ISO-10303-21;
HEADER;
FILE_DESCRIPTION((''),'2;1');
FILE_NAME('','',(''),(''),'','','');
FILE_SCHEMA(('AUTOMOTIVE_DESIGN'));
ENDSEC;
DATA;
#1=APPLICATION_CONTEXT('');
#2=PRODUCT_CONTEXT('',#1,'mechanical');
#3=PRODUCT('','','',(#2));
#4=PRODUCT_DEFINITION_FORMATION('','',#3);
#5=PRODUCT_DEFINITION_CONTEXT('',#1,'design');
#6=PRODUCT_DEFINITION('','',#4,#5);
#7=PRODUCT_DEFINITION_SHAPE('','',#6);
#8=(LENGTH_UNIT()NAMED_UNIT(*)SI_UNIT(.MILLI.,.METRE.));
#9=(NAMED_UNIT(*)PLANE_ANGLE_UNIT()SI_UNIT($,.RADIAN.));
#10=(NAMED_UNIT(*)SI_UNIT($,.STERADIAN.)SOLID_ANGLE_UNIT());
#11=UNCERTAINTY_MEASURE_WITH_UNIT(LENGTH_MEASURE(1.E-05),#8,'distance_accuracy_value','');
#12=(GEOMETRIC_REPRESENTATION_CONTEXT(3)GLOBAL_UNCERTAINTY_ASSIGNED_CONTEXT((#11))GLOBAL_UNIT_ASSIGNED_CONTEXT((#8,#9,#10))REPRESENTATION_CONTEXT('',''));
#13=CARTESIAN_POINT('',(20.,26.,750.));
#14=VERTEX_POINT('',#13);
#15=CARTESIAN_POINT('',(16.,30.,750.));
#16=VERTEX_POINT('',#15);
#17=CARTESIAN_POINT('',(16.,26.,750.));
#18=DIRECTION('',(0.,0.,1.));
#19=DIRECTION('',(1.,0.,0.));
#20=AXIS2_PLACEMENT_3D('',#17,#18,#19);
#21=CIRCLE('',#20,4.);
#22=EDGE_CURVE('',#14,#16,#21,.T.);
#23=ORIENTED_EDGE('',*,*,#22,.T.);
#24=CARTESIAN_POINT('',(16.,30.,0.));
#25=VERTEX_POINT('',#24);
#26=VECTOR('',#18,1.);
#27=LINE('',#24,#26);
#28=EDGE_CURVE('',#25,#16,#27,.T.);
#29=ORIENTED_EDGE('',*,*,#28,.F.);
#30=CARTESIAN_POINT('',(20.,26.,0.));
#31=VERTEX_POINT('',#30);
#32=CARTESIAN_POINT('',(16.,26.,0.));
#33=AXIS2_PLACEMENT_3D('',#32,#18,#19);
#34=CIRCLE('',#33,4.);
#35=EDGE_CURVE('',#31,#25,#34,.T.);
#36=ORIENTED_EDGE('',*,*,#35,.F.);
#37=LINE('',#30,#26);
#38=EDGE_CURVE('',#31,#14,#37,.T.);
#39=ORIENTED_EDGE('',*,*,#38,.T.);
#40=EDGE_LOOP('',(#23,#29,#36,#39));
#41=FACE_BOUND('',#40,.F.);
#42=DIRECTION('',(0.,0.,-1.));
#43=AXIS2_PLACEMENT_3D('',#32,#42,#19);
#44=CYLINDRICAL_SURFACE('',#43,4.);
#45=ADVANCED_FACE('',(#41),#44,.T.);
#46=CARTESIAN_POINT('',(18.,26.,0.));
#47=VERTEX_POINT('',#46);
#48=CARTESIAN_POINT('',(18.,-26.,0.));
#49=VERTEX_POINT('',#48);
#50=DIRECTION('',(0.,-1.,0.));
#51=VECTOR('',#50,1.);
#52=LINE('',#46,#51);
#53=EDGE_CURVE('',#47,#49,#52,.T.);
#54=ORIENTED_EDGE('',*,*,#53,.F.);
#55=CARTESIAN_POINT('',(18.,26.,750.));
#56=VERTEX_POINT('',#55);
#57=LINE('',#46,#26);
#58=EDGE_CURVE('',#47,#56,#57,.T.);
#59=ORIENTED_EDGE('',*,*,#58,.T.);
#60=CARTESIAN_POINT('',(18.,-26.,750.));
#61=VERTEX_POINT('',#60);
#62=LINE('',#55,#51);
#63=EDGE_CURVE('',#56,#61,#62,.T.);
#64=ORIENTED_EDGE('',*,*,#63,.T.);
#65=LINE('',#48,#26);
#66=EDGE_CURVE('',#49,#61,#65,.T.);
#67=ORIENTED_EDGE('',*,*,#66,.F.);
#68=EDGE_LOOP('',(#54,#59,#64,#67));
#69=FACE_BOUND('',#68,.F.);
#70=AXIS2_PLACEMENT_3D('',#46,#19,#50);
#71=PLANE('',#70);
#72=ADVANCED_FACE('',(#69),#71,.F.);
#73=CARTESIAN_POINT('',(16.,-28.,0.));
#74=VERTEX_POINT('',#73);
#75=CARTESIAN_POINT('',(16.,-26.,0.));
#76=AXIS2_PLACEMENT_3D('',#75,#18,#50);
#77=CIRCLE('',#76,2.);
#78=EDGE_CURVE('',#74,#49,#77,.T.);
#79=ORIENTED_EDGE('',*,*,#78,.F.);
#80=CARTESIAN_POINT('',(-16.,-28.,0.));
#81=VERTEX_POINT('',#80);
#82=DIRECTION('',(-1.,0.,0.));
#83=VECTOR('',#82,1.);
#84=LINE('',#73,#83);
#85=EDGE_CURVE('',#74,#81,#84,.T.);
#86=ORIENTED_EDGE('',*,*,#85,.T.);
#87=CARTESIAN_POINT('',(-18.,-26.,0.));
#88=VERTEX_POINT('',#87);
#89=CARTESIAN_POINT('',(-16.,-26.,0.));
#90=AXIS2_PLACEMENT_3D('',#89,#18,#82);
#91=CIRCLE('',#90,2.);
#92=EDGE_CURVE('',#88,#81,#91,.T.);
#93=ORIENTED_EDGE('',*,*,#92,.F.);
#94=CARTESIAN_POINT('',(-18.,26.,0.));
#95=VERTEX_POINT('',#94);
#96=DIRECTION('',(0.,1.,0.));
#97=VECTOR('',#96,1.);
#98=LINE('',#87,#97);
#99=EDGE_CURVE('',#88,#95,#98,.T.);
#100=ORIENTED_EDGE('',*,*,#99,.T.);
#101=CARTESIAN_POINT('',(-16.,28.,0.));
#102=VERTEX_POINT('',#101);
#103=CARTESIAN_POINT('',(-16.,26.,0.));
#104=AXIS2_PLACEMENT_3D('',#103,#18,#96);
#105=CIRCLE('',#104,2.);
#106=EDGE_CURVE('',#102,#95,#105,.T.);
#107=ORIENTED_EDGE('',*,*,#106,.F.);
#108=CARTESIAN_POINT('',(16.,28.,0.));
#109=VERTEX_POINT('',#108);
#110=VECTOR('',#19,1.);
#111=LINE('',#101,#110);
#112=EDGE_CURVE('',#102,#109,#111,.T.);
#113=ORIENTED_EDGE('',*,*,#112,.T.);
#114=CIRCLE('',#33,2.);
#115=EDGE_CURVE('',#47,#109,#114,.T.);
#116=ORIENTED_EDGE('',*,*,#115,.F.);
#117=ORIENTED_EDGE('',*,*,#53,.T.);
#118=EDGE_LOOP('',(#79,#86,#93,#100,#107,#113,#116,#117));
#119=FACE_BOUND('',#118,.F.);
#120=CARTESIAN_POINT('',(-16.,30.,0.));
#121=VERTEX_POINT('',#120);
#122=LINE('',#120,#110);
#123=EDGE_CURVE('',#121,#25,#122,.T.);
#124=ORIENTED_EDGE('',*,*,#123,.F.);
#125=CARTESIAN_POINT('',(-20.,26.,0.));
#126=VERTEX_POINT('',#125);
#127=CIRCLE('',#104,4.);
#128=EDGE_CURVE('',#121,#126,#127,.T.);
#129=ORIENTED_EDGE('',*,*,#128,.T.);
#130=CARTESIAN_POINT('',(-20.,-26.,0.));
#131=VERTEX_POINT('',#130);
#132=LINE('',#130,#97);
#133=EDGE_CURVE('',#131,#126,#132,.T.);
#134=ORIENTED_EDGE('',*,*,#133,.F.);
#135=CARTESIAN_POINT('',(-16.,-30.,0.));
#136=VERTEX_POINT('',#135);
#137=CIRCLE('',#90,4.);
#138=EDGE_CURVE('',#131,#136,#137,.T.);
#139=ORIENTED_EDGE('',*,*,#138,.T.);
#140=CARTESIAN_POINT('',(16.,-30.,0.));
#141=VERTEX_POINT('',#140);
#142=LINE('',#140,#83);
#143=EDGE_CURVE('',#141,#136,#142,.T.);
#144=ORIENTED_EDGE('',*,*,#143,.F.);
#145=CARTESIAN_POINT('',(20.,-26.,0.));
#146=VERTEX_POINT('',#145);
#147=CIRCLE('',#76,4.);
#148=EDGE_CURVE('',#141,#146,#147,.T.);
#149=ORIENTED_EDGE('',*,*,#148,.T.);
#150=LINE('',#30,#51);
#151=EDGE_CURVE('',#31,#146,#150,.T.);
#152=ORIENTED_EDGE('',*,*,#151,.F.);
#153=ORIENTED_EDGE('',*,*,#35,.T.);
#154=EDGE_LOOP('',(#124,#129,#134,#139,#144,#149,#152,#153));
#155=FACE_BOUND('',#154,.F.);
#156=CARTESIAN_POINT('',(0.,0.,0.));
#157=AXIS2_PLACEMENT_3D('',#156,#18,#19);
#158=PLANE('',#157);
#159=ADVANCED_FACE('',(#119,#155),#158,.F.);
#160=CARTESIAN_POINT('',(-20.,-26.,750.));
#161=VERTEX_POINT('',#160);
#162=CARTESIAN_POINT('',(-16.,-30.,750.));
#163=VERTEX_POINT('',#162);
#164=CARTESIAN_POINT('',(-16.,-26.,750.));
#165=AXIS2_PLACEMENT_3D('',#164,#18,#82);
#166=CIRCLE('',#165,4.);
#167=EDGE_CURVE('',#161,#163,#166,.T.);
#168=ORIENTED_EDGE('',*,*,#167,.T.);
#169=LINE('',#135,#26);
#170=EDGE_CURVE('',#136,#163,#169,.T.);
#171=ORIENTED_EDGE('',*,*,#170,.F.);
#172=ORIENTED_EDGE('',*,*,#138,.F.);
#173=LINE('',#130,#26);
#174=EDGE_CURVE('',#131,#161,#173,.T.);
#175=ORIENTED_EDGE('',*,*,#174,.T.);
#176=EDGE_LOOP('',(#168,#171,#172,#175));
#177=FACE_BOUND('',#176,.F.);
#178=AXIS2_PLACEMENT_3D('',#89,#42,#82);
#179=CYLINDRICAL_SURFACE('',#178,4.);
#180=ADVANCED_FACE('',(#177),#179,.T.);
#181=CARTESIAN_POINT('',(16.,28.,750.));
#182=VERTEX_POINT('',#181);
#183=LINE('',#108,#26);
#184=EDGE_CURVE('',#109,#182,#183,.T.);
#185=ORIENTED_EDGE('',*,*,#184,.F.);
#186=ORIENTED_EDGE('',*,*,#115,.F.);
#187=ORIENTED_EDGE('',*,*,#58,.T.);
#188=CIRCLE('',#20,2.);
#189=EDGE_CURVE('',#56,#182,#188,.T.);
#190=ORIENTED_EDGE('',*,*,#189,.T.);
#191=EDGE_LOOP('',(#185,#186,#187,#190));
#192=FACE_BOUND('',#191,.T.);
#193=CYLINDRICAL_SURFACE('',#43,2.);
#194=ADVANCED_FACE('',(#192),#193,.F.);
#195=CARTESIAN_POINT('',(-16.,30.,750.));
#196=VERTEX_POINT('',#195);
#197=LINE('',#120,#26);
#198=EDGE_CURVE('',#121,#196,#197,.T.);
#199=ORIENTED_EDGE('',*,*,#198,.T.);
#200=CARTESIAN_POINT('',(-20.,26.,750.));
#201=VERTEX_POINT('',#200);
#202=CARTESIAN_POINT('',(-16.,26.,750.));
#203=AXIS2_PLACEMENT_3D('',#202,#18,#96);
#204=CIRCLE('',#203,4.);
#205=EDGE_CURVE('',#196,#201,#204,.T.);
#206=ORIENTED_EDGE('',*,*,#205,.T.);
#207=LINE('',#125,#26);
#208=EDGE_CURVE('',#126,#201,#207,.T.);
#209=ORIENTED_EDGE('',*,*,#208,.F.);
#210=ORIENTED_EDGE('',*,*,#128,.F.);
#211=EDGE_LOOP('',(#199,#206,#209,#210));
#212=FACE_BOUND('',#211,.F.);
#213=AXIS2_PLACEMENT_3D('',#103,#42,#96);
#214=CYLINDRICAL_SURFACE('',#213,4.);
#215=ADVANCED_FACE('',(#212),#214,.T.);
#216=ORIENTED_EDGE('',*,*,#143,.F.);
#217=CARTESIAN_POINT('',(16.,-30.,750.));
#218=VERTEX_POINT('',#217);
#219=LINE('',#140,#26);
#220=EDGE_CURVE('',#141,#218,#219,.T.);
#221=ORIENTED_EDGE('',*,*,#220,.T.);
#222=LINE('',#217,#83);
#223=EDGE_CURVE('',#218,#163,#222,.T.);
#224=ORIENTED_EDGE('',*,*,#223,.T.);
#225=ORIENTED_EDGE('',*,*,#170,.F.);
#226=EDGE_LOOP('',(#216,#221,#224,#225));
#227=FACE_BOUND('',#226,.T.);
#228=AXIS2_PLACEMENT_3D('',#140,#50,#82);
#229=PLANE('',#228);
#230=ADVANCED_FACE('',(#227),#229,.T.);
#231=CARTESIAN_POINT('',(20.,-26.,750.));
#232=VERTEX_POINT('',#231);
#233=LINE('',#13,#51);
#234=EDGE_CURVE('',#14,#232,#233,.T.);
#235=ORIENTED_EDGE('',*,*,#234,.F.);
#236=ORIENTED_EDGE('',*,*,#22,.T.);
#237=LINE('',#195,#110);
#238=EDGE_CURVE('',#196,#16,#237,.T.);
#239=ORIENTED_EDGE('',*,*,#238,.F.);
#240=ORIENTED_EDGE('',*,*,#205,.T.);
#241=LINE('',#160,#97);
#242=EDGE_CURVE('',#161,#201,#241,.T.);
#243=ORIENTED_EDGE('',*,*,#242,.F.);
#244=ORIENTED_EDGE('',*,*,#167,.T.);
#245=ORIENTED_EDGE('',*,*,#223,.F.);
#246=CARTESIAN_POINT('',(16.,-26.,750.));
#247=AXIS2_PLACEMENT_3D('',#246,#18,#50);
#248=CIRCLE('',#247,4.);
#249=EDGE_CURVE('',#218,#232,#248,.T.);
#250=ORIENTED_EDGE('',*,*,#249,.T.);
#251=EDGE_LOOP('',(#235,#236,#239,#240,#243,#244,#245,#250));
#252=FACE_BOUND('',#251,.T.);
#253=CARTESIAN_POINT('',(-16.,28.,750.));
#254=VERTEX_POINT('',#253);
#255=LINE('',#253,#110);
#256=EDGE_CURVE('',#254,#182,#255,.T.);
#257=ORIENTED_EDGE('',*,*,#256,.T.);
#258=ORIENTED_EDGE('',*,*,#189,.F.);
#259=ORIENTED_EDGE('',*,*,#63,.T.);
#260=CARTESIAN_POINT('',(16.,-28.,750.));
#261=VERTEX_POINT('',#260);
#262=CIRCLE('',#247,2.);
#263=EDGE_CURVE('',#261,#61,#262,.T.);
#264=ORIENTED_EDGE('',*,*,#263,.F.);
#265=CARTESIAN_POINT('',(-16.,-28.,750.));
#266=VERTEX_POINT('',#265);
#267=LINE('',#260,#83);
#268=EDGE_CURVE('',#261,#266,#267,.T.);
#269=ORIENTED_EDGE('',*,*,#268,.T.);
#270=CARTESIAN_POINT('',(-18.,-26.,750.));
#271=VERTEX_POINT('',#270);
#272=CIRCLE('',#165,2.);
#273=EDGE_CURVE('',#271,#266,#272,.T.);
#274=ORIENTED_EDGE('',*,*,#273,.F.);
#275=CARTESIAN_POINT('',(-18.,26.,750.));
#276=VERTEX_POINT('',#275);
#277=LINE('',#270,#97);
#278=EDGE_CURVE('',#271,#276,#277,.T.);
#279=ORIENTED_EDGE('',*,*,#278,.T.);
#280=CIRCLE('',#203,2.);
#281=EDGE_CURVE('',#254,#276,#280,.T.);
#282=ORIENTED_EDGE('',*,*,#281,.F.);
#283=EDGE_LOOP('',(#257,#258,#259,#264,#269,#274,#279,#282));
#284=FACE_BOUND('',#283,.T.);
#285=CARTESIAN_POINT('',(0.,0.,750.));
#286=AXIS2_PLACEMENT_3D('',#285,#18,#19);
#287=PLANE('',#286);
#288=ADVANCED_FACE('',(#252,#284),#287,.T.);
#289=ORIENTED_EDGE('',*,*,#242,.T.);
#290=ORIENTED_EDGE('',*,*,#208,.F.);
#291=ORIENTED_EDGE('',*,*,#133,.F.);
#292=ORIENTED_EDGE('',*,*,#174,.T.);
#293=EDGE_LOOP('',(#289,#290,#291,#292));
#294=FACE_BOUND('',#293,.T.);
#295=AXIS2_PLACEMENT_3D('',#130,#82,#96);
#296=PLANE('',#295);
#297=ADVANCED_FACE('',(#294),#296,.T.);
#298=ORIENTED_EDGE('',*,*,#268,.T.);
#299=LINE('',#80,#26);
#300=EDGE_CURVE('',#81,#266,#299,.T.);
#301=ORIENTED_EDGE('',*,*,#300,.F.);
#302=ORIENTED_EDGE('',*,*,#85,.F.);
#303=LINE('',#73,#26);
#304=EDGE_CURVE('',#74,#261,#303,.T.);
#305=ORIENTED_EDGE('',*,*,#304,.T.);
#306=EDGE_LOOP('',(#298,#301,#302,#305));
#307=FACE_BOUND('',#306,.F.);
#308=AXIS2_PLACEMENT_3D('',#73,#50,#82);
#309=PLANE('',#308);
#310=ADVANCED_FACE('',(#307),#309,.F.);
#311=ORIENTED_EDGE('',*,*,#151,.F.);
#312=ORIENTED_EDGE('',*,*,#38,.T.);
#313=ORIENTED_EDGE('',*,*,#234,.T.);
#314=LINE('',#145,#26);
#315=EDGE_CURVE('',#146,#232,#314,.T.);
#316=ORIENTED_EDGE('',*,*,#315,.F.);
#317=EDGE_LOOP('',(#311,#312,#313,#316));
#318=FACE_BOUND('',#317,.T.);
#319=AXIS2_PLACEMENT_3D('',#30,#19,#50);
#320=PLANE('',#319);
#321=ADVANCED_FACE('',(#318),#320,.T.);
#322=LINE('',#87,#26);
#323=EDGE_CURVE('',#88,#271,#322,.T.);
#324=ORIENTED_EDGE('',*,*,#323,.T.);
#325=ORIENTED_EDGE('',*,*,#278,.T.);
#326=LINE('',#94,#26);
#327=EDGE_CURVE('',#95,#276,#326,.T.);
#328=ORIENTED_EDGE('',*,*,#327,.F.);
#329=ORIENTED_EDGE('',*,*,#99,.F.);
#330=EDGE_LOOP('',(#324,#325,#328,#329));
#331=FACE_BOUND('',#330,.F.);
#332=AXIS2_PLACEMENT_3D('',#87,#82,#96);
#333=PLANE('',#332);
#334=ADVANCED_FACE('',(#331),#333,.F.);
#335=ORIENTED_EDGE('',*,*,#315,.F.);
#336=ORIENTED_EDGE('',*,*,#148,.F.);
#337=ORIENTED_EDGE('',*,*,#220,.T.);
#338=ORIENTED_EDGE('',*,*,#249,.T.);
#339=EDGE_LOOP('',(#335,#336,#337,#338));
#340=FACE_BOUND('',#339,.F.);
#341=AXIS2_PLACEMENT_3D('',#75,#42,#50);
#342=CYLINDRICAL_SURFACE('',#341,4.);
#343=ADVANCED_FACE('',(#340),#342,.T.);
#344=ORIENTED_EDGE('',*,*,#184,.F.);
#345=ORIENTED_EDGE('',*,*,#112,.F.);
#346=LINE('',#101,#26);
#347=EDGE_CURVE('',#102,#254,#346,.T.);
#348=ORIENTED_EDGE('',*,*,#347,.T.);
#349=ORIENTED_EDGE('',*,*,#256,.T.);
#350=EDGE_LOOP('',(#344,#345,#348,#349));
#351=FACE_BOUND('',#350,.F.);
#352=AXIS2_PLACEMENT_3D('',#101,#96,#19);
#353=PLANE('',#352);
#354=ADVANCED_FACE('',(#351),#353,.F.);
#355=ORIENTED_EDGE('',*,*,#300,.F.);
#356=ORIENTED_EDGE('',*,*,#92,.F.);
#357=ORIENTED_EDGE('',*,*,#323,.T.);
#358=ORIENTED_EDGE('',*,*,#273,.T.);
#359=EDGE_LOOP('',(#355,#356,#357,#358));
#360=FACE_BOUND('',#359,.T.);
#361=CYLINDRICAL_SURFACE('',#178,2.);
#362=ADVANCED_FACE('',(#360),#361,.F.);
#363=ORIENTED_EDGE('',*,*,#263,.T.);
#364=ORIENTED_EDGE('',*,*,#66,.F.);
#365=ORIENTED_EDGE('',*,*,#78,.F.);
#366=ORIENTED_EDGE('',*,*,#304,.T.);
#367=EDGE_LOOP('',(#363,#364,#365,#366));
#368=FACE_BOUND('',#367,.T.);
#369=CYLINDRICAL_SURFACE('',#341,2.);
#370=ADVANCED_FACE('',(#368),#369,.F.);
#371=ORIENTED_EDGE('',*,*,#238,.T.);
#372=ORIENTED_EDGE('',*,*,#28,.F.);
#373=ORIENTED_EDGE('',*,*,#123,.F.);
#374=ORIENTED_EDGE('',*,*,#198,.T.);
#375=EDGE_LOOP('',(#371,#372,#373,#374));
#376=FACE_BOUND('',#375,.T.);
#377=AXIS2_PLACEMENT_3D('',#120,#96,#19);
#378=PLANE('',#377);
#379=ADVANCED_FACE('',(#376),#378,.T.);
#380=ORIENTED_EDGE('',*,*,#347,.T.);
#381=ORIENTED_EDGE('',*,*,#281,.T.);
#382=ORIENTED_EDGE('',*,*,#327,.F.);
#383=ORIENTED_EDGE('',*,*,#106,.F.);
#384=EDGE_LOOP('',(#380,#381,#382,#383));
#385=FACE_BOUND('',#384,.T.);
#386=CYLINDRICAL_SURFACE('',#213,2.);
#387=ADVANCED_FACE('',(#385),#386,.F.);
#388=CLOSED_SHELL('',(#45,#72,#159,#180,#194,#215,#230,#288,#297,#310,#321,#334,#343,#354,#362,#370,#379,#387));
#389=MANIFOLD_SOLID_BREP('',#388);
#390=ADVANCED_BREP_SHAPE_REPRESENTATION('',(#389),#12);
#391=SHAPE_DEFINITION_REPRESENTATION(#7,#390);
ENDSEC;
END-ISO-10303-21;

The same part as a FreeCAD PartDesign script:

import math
import FreeCAD as App
import Part
import Sketcher
from FreeCAD import Vector

doc = App.newDocument("Part")
params = doc.addObject("Spreadsheet::Sheet", "Params")
for row, (alias, value) in enumerate([
    ("sketch1_radius", "4 mm"),
    ("sketch1_radius2", "2 mm"),
    ("pad1_length", "750 mm"),
], start=1):
    params.set(f"A{row}", alias)
    params.set(f"B{row}", "=" + value)
    params.setAlias(f"B{row}", alias)

body = doc.addObject("PartDesign::Body", "Body")

# Sketch on XY plane
sketch1 = body.newObject("Sketcher::SketchObject", "Sketch")
sketch1.AttachmentSupport = (doc.getObject("XY_Plane"), [""])
sketch1.MapMode = "FlatFace"
sketch1.addGeometry([
    Part.LineSegment(Vector(-20, 26, 0), Vector(-20, -26, 0)),  # 0
    Part.ArcOfCircle(Part.Circle(Vector(-16, -26, 0), Vector(0, 0, 1), 4), math.radians(180), math.radians(270)),  # 1
    Part.LineSegment(Vector(-16, -30, 0), Vector(16, -30, 0)),  # 2
    Part.ArcOfCircle(Part.Circle(Vector(16, -26, 0), Vector(0, 0, 1), 4), math.radians(-90), math.radians(0)),  # 3
    Part.LineSegment(Vector(20, -26, 0), Vector(20, 26, 0)),  # 4
    Part.ArcOfCircle(Part.Circle(Vector(16, 26, 0), Vector(0, 0, 1), 4), math.radians(0), math.radians(90)),  # 5
    Part.LineSegment(Vector(16, 30, 0), Vector(-16, 30, 0)),  # 6
    Part.ArcOfCircle(Part.Circle(Vector(-16, 26, 0), Vector(0, 0, 1), 4), math.radians(90), math.radians(180)),  # 7
    Part.ArcOfCircle(Part.Circle(Vector(-16, 26, 0), Vector(0, 0, 1), 2), math.radians(90), math.radians(180)),  # 8
    Part.LineSegment(Vector(-16, 28, 0), Vector(16, 28, 0)),  # 9
    Part.ArcOfCircle(Part.Circle(Vector(16, 26, 0), Vector(0, 0, 1), 2), math.radians(0), math.radians(90)),  # 10
    Part.LineSegment(Vector(18, 26, 0), Vector(18, -26, 0)),  # 11
    Part.ArcOfCircle(Part.Circle(Vector(16, -26, 0), Vector(0, 0, 1), 2), math.radians(-90), math.radians(0)),  # 12
    Part.LineSegment(Vector(16, -28, 0), Vector(-16, -28, 0)),  # 13
    Part.ArcOfCircle(Part.Circle(Vector(-16, -26, 0), Vector(0, 0, 1), 2), math.radians(180), math.radians(270)),  # 14
    Part.LineSegment(Vector(-18, -26, 0), Vector(-18, 26, 0)),  # 15
], False)
sketch1.addConstraint([
    Sketcher.Constraint("Tangent", 0, 2, 1, 1),
    Sketcher.Constraint("Tangent", 1, 2, 2, 1),
    Sketcher.Constraint("Tangent", 2, 2, 3, 1),
    Sketcher.Constraint("Tangent", 3, 2, 4, 1),
    Sketcher.Constraint("Tangent", 4, 2, 5, 1),
    Sketcher.Constraint("Tangent", 5, 2, 6, 1),
    Sketcher.Constraint("Tangent", 6, 2, 7, 1),
    Sketcher.Constraint("Tangent", 7, 2, 0, 1),
    Sketcher.Constraint("Tangent", 8, 1, 9, 1),
    Sketcher.Constraint("Tangent", 9, 2, 10, 2),
    Sketcher.Constraint("Tangent", 10, 1, 11, 1),
    Sketcher.Constraint("Tangent", 11, 2, 12, 2),
    Sketcher.Constraint("Tangent", 12, 1, 13, 1),
    Sketcher.Constraint("Tangent", 13, 2, 14, 2),
    Sketcher.Constraint("Tangent", 14, 1, 15, 1),
    Sketcher.Constraint("Tangent", 15, 2, 8, 2),
    Sketcher.Constraint("Vertical", 0),
    Sketcher.Constraint("Horizontal", 2),
    Sketcher.Constraint("Vertical", 4),
    Sketcher.Constraint("Horizontal", 6),
    Sketcher.Constraint("Horizontal", 9),
    Sketcher.Constraint("Vertical", 11),
    Sketcher.Constraint("Horizontal", 13),
    Sketcher.Constraint("Vertical", 15),
    Sketcher.Constraint("Coincident", 8, 3, 7, 3),
    Sketcher.Constraint("Coincident", 10, 3, 5, 3),
    Sketcher.Constraint("Coincident", 12, 3, 3, 3),
    Sketcher.Constraint("Equal", 1, 3),
    Sketcher.Constraint("Equal", 3, 5),
    Sketcher.Constraint("Equal", 5, 7),
    Sketcher.Constraint("Equal", 12, 14),
    Sketcher.Constraint("Symmetric", 1, 3, 5, 3, -1, 1),
    Sketcher.Constraint("Radius", 1, 4.0),
    Sketcher.Constraint("Radius", 8, 2.0),
    Sketcher.Constraint("DistanceX", 0, 2, -1, 1, 20.0),
    Sketcher.Constraint("DistanceY", 1, 2, -1, 1, 30.0),
])
sketch1.setExpression("Constraints[32]", "Params.sketch1_radius")
sketch1.setExpression("Constraints[33]", "Params.sketch1_radius2")
pad1 = body.newObject("PartDesign::Pad", "Pad")
pad1.Profile = sketch1
pad1.setExpression("Length", "Params.pad1_length")

doc.recompute()
